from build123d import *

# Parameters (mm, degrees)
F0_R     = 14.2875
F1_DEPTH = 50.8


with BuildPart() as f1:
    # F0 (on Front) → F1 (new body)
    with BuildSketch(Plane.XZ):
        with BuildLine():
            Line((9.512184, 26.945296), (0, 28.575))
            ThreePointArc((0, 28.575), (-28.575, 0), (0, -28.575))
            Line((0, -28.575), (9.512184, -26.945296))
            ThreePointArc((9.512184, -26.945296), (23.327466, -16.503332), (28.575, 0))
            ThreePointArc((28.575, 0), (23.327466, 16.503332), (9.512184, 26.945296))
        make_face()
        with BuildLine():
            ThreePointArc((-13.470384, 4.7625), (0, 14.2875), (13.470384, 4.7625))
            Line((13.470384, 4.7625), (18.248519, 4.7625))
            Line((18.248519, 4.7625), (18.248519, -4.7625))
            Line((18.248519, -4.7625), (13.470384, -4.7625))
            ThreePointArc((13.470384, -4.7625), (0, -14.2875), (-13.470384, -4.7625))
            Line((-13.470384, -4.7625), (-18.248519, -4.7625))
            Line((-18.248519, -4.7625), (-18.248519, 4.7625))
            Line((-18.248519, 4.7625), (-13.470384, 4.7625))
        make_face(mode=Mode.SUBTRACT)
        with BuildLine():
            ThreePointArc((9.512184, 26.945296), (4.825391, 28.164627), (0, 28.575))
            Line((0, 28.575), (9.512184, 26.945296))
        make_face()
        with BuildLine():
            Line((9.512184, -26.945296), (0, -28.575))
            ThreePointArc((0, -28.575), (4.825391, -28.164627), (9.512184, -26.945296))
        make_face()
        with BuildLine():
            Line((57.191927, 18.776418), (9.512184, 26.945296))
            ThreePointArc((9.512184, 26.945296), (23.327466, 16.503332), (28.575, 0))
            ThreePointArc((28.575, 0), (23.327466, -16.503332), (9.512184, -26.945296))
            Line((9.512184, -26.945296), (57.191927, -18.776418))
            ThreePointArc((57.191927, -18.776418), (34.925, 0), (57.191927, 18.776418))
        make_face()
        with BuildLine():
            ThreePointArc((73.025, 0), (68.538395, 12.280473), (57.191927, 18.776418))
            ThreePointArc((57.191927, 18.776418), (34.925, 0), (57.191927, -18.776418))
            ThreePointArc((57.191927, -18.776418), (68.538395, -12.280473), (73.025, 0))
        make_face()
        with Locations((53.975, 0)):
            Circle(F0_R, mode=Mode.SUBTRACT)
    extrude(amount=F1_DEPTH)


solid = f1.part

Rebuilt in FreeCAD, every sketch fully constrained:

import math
import FreeCAD as App
import Part
import Sketcher
Q = App.Units.Quantity

doc = App.newDocument("Part")
body = doc.addObject("PartDesign::Body", "Body")

sketch1 = body.newObject("Sketcher::SketchObject", "Sketch")
sketch1.AttachmentSupport = (doc.getObject("XZ_Plane"), [""])
sketch1.MapMode = "FlatFace"
sketch1.addGeometry(Part.ArcOfCircle(Part.Circle(App.Vector(0, 0, 0), App.Vector(0, 0, 1), 28.6), math.radians(70.56), math.radians(90)), False)
sketch1.addGeometry(Part.ArcOfCircle(Part.Circle(App.Vector(0, 0, 0), App.Vector(0, 0, 1), 28.6), math.radians(90), math.radians(270)), False)
sketch1.addGeometry(Part.ArcOfCircle(Part.Circle(App.Vector(0, 0, 0), App.Vector(0, 0, 1), 28.6), math.radians(-90), math.radians(-70.56)), False)
sketch1.addGeometry(Part.LineSegment(App.Vector(9.5, -26.9, 0), App.Vector(57.2, -18.8, 0)), False)
sketch1.addGeometry(Part.ArcOfCircle(Part.Circle(App.Vector(54, 0, 0), App.Vector(0, 0, 1), 19.1), math.radians(-80), math.radians(0)), False)
sketch1.addGeometry(Part.ArcOfCircle(Part.Circle(App.Vector(54, 0, 0), App.Vector(0, 0, 1), 19.1), math.radians(0), math.radians(80)), False)
sketch1.addGeometry(Part.LineSegment(App.Vector(57.2, 18.8, 0), App.Vector(9.5, 26.9, 0)), False)
sketch1.addGeometry(Part.LineSegment(App.Vector(-18.2, 4.8, 0), App.Vector(-13.5, 4.8, 0)), False)
sketch1.addGeometry(Part.ArcOfCircle(Part.Circle(App.Vector(0, 0, 0), App.Vector(0, 0, 1), 14.3), math.radians(19), math.radians(161)), False)
sketch1.addGeometry(Part.LineSegment(App.Vector(13.5, 4.8, 0), App.Vector(18.2, 4.8, 0)), False)
sketch1.addGeometry(Part.LineSegment(App.Vector(18.2, 4.8, 0), App.Vector(18.2, -4.8, 0)), False)
sketch1.addGeometry(Part.LineSegment(App.Vector(18.2, -4.8, 0), App.Vector(13.5, -4.8, 0)), False)
sketch1.addGeometry(Part.ArcOfCircle(Part.Circle(App.Vector(0, 0, 0), App.Vector(0, 0, 1), 14.3), math.radians(-161), math.radians(-19)), False)
sketch1.addGeometry(Part.LineSegment(App.Vector(-13.5, -4.8, 0), App.Vector(-18.2, -4.8, 0)), False)
sketch1.addGeometry(Part.LineSegment(App.Vector(-18.2, -4.8, 0), App.Vector(-18.2, 4.8, 0)), False)
sketch1.addGeometry(Part.Circle(App.Vector(54, 0, 0), App.Vector(0, 0, 1), 14.3), False)
sketch1.addConstraint(Sketcher.Constraint("Tangent", 0, 2, 1, 1))
sketch1.addConstraint(Sketcher.Constraint("Tangent", 1, 2, 2, 1))
sketch1.addConstraint(Sketcher.Constraint("Coincident", 2, 2, 3, 1))
sketch1.addConstraint(Sketcher.Constraint("Tangent", 3, 2, 4, 1))
sketch1.addConstraint(Sketcher.Constraint("Tangent", 4, 2, 5, 1))
sketch1.addConstraint(Sketcher.Constraint("Tangent", 5, 2, 6, 1))
sketch1.addConstraint(Sketcher.Constraint("Coincident", 6, 2, 0, 1))
sketch1.addConstraint(Sketcher.Constraint("Coincident", 7, 2, 8, 2))
sketch1.addConstraint(Sketcher.Constraint("Coincident", 8, 1, 9, 1))
sketch1.addConstraint(Sketcher.Constraint("Coincident", 9, 2, 10, 1))
sketch1.addConstraint(Sketcher.Constraint("Coincident", 10, 2, 11, 1))
sketch1.addConstraint(Sketcher.Constraint("Coincident", 11, 2, 12, 2))
sketch1.addConstraint(Sketcher.Constraint("Coincident", 12, 1, 13, 1))
sketch1.addConstraint(Sketcher.Constraint("Coincident", 13, 2, 14, 1))
sketch1.addConstraint(Sketcher.Constraint("Coincident", 14, 2, 7, 1))
sketch1.addConstraint(Sketcher.Constraint("Horizontal", 7))
sketch1.addConstraint(Sketcher.Constraint("Horizontal", 9))
sketch1.addConstraint(Sketcher.Constraint("Vertical", 10))
sketch1.addConstraint(Sketcher.Constraint("Horizontal", 11))
sketch1.addConstraint(Sketcher.Constraint("Horizontal", 13))
sketch1.addConstraint(Sketcher.Constraint("Vertical", 14))
sketch1.addConstraint(Sketcher.Constraint("Coincident", 1, 3, -1, 1))
sketch1.addConstraint(Sketcher.Constraint("Coincident", 8, 3, -1, 1))
sketch1.addConstraint(Sketcher.Constraint("Coincident", 12, 3, -1, 1))
sketch1.addConstraint(Sketcher.Constraint("Coincident", 15, 3, 4, 3))
sketch1.addConstraint(Sketcher.Constraint("Equal", 0, 2))
sketch1.addConstraint(Sketcher.Constraint("Equal", 4, 5))
sketch1.addConstraint(Sketcher.Constraint("Equal", 8, 12))
sketch1.addConstraint(Sketcher.Constraint("Equal", 12, 15))
sketch1.addConstraint(Sketcher.Constraint("Symmetric", 9, 2, 13, 2, -1, 1))
sketch1.addConstraint(Sketcher.Constraint("Symmetric", 3, 2, 5, 2, -1))
sketch1.addConstraint(Sketcher.Constraint("PointOnObject", 0, 2, -2))
sketch1.addConstraint(Sketcher.Constraint("PointOnObject", 1, 2, -2))
sketch1.addConstraint(Sketcher.Constraint("PointOnObject", 4, 2, -1))
sketch1.addConstraint(Sketcher.Constraint("Horizontal", 7, 2, 8, 1))
sketch1.addConstraint(Sketcher.Constraint("Horizontal", 11, 2, 12, 1))
sketch1.addConstraint(Sketcher.Constraint("Radius", 4, Q("0.75 in")))
sketch1.addConstraint(Sketcher.Constraint("Diameter", 15, Q("1.125 in")))
sketch1.addConstraint(Sketcher.Constraint("Radius", 1, Q("1.125 in")))
sketch1.addConstraint(Sketcher.Constraint("DistanceY", 10, 2, 10, 1, Q("0.375 in")))
sketch1.addConstraint(Sketcher.Constraint("DistanceX", -1, 1, 4, 3, Q("2.125 in")))
sketch1.addConstraint(Sketcher.Constraint("Radius", 0, 28.575013))
sketch1.addConstraint(Sketcher.Constraint("Distance", 3, 48.374461))
sketch1.addConstraint(Sketcher.Constraint("DistanceX", 7, 1, 7, 2, 4.778135))
pad1 = body.newObject("PartDesign::Pad", "Pad")
pad1.Profile = sketch1
pad1.Length = Q("2 in")

doc.recompute()
